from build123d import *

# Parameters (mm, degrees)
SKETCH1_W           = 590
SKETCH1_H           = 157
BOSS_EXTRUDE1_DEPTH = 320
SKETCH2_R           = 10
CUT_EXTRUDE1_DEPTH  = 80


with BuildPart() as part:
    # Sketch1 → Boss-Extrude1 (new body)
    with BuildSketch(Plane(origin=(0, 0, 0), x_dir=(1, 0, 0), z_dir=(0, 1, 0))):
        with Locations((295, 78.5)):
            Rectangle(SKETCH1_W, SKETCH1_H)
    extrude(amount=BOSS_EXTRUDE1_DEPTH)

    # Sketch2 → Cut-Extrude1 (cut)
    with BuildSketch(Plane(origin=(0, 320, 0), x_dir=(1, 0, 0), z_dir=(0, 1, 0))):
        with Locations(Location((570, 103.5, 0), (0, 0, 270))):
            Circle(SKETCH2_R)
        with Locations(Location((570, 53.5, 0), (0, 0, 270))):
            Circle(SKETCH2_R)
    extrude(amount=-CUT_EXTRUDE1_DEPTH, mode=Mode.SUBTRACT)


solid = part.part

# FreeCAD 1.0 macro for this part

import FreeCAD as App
import Part
import Sketcher

V = App.Vector

doc = App.newDocument("Part")
body = doc.addObject("PartDesign::Body", "Body")

# Sketch on XZ plane
sketch1 = body.newObject("Sketcher::SketchObject", "Sketch")
sketch1.AttachmentSupport = (doc.getObject("XZ_Plane"), [""])
sketch1.MapMode = "FlatFace"
sketch1.addGeometry([
    Part.LineSegment(V(0, -157, 0), V(0, 0, 0)),
    Part.LineSegment(V(0, 0, 0), V(590, 0, 0)),
    Part.LineSegment(V(590, 0, 0), V(590, -157, 0)),
    Part.LineSegment(V(590, -157, 0), V(0, -157, 0)),
], False)
sketch1.addConstraint([
    Sketcher.Constraint("Coincident", 0, 2, 1, 1),
    Sketcher.Constraint("Coincident", 1, 2, 2, 1),
    Sketcher.Constraint("Coincident", 2, 2, 3, 1),
    Sketcher.Constraint("Coincident", 3, 2, 0, 1),
    Sketcher.Constraint("Vertical", 0),
    Sketcher.Constraint("Horizontal", 1),
    Sketcher.Constraint("Vertical", 2),
    Sketcher.Constraint("Horizontal", 3),
    Sketcher.Constraint("Coincident", 0, 2, -1, 1),
    Sketcher.Constraint("DistanceX", 1, 1, 1, 2, 590.0),
    Sketcher.Constraint("DistanceY", 0, 1, 0, 2, 157.0),
])
pad1 = body.newObject("PartDesign::Pad", "Pad")
pad1.Profile = sketch1
pad1.Length = 320
pad1.Reversed = True

# Sketch on XZ plane
sketch2 = body.newObject("Sketcher::SketchObject", "Sketch001")
sketch2.AttachmentSupport = (doc.getObject("XZ_Plane"), [""])
sketch2.MapMode = "FlatFace"
sketch2.AttachmentOffset = App.Placement(V(0, 0, -320), App.Rotation())
sketch2.addGeometry([
    Part.Circle(V(570, -104, 0), V(0, 0, 1), 10),
    Part.Circle(V(570, -54, 0), V(0, 0, 1), 10),
], False)
sketch2.addConstraint([
    Sketcher.Constraint("Equal", 0, 1),
    Sketcher.Constraint("Vertical", 0, 3, 1, 3),
    Sketcher.Constraint("Diameter", 0, 20.0),
    Sketcher.Constraint("DistanceX", -1, 1, 0, 3, 570.0),
    Sketcher.Constraint("DistanceY", 0, 3, 1, 3, 50.0),
    Sketcher.Constraint("DistanceY", 0, 3, -1, 1, 103.5),
])
pocket1 = body.newObject("PartDesign::Pocket", "Pocket")
pocket1.Profile = sketch2
pocket1.Length = 80
pocket1.Reversed = True

doc.recompute()
